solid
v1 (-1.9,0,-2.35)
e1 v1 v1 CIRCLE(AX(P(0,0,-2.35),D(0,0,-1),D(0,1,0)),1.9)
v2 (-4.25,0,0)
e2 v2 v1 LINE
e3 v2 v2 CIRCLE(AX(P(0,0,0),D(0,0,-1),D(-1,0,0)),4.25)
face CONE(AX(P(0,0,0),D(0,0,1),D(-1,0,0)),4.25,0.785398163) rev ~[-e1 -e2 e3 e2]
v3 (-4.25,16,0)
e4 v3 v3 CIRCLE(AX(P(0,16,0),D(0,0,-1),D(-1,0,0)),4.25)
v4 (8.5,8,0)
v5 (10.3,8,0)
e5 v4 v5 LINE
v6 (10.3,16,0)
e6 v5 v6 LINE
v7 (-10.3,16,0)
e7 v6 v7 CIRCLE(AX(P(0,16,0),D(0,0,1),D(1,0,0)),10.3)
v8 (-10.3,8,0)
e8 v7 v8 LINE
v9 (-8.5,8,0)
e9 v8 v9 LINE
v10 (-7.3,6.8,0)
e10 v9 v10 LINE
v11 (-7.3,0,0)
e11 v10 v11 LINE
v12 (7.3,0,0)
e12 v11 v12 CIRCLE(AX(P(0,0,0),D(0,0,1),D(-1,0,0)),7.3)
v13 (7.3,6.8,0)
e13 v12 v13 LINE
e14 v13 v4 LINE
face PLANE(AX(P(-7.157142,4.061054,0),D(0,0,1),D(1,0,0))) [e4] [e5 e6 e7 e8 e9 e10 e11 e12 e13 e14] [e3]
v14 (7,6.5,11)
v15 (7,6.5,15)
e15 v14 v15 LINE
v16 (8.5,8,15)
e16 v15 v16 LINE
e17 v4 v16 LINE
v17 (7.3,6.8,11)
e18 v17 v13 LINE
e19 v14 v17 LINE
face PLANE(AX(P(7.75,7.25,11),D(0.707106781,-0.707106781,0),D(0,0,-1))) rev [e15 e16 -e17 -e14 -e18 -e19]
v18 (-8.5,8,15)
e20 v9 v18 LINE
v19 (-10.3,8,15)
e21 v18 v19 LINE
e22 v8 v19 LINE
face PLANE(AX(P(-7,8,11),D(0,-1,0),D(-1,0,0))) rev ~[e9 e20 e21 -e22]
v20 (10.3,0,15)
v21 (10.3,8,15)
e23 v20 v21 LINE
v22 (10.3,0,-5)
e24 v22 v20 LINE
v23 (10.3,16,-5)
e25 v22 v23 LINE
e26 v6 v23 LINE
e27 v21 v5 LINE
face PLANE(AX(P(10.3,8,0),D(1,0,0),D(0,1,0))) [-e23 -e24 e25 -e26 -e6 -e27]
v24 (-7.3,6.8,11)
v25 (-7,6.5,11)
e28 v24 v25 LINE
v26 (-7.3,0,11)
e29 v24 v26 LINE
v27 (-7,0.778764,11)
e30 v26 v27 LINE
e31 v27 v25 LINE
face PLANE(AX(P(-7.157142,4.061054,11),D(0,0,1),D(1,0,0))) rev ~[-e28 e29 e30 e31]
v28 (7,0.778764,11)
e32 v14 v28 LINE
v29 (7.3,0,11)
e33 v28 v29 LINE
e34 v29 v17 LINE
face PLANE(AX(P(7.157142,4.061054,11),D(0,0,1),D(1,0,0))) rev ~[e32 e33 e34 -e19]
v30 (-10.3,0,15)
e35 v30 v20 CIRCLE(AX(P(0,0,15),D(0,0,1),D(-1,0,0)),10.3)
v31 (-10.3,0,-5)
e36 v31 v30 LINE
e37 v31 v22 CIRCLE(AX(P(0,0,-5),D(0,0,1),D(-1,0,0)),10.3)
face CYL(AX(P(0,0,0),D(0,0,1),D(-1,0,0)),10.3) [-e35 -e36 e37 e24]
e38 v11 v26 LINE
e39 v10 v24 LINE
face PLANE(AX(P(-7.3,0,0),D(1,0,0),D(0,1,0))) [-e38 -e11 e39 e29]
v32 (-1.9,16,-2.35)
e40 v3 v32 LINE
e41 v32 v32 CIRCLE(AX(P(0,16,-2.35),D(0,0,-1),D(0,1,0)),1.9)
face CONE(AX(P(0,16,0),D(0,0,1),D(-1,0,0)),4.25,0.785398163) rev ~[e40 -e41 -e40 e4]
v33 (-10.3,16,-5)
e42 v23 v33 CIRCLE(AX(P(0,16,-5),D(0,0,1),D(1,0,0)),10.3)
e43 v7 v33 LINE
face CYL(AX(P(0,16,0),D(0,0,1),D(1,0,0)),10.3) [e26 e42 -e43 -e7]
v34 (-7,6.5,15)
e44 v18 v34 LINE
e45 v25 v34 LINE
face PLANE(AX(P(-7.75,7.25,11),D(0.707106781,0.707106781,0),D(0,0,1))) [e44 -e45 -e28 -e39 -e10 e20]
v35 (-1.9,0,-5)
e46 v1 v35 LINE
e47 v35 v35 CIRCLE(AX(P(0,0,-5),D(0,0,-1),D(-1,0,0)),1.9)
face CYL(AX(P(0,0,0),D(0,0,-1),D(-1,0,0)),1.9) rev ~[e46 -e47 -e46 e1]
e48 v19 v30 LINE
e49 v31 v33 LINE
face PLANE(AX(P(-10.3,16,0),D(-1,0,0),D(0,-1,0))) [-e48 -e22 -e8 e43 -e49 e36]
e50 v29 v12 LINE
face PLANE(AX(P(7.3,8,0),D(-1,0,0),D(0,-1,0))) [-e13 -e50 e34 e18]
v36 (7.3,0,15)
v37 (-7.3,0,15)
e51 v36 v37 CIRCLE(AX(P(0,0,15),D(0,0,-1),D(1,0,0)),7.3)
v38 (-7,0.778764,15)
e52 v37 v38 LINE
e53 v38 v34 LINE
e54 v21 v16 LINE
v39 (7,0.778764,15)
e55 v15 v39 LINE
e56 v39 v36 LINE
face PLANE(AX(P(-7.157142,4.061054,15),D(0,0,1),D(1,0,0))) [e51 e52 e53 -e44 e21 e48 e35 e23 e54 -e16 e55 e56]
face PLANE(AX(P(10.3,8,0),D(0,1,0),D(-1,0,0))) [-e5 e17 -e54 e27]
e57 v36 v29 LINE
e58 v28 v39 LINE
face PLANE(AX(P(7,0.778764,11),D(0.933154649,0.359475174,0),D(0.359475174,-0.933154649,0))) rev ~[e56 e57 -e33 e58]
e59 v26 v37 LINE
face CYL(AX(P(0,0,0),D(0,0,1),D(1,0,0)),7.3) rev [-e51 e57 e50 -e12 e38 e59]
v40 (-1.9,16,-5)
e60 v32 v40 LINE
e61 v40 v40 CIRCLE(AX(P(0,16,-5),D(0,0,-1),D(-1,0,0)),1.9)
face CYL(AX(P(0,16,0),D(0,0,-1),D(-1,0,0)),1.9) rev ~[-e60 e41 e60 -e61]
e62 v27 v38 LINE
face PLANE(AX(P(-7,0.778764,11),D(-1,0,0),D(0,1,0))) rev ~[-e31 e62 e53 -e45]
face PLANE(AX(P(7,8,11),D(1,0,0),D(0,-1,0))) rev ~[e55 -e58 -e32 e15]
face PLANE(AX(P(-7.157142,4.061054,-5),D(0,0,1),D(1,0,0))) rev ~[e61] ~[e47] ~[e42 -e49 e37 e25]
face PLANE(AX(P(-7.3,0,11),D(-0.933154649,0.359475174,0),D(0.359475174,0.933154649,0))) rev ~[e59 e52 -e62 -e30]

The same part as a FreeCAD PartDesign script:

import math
import FreeCAD as App
import Part
import Sketcher

V = App.Vector


def edges_at(feature, points):
    """Names of the edges that pass closest to the given points."""
    edges = feature.Shape.Edges
    near = lambda p: min(range(len(edges)), key=lambda i: edges[i].distToShape(Part.Vertex(*p))[0])
    return sorted({f"Edge{near(p) + 1}" for p in points})

doc = App.newDocument("Part")
body = doc.addObject("PartDesign::Body", "Body")

sketch1 = body.newObject("Sketcher::SketchObject", "Sketch")
sketch1.AttachmentSupport = (doc.getObject("XY_Plane"), [""])
sketch1.MapMode = "FlatFace"
sketch1.addGeometry([
    Part.ArcOfCircle(Part.Circle(V(0, 0, 0), V(0, 0, 1), 7.3), math.radians(180), math.radians(360)),
    Part.LineSegment(V(-7.3, 0, 0), V(-7.3, 8, 0)),
    Part.LineSegment(V(-7.3, 8, 0), V(-10.3, 8, 0)),
    Part.LineSegment(V(-10.3, 8, 0), V(-10.3, 0, 0)),
    Part.ArcOfCircle(Part.Circle(V(0, 0, 0), V(0, 0, 1), 10.3), math.radians(180), math.radians(360)),
    Part.LineSegment(V(10.3, 0, 0), V(10.3, 8, 0)),
    Part.LineSegment(V(10.3, 8, 0), V(7.3, 8, 0)),
    Part.LineSegment(V(7.3, 8, 0), V(7.3, 0, 0)),
], False)
sketch1.addConstraint([
    Sketcher.Constraint("Tangent", 0, 1, 1, 1),
    Sketcher.Constraint("Coincident", 1, 2, 2, 1),
    Sketcher.Constraint("Coincident", 2, 2, 3, 1),
    Sketcher.Constraint("Tangent", 3, 2, 4, 1),
    Sketcher.Constraint("Tangent", 4, 2, 5, 1),
    Sketcher.Constraint("Coincident", 5, 2, 6, 1),
    Sketcher.Constraint("Coincident", 6, 2, 7, 1),
    Sketcher.Constraint("Tangent", 7, 2, 0, 2),
    Sketcher.Constraint("Vertical", 1),
    Sketcher.Constraint("Horizontal", 2),
    Sketcher.Constraint("Vertical", 3),
    Sketcher.Constraint("Vertical", 5),
    Sketcher.Constraint("Horizontal", 6),
    Sketcher.Constraint("Vertical", 7),
    Sketcher.Constraint("Coincident", 0, 3, -1, 1),
    Sketcher.Constraint("Coincident", 4, 3, -1, 1),
    Sketcher.Constraint("Horizontal", 2, 2, 5, 2),
    Sketcher.Constraint("Radius", 0, 7.3),
    Sketcher.Constraint("Radius", 4, 10.3),
    Sketcher.Constraint("DistanceY", 1, 1, 1, 2, 8.0),
])
pad1 = body.newObject("PartDesign::Pad", "Pad")
pad1.Profile = sketch1
pad1.Type = "TwoLengths"
pad1.Length = 15
pad1.Length2 = 5

sketch2 = body.newObject("Sketcher::SketchObject", "Sketch001")
sketch2.AttachmentSupport = (doc.getObject("XY_Plane"), [""])
sketch2.MapMode = "FlatFace"
sketch2.AttachmentOffset = App.Placement(V(0, 0, 11), App.Rotation())
sketch2.addGeometry([
    Part.LineSegment(V(-7.3, 8, 0), V(-7.3, 0, 0)),
    Part.LineSegment(V(-7.3, 0, 0), V(-7, 0.78, 0)),
    Part.LineSegment(V(-7, 0.78, 0), V(-7, 8, 0)),
    Part.LineSegment(V(-7, 8, 0), V(-7.3, 8, 0)),
    Part.LineSegment(V(7, 0.78, 0), V(7.3, 0, 0)),
    Part.LineSegment(V(7.3, 0, 0), V(7.3, 8, 0)),
    Part.LineSegment(V(7.3, 8, 0), V(7, 8, 0)),
    Part.LineSegment(V(7, 8, 0), V(7, 0.78, 0)),
], False)
sketch2.addConstraint([
    Sketcher.Constraint("Coincident", 0, 2, 1, 1),
    Sketcher.Constraint("Coincident", 1, 2, 2, 1),
    Sketcher.Constraint("Coincident", 2, 2, 3, 1),
    Sketcher.Constraint("Coincident", 3, 2, 0, 1),
    Sketcher.Constraint("Coincident", 4, 2, 5, 1),
    Sketcher.Constraint("Coincident", 5, 2, 6, 1),
    Sketcher.Constraint("Coincident", 6, 2, 7, 1),
    Sketcher.Constraint("Coincident", 7, 2, 4, 1),
    Sketcher.Constraint("Vertical", 0),
    Sketcher.Constraint("Vertical", 2),
    Sketcher.Constraint("Horizontal", 3),
    Sketcher.Constraint("Vertical", 5),
    Sketcher.Constraint("Horizontal", 6),
    Sketcher.Constraint("Vertical", 7),
    Sketcher.Constraint("Symmetric", 0, 2, 4, 2, -1, 1),
    Sketcher.Constraint("Symmetric", 2, 2, 6, 2, -2),
    Sketcher.Constraint("PointOnObject", 0, 2, -1),
    Sketcher.Constraint("Horizontal", 1, 2, 7, 2),
    Sketcher.Constraint("DistanceY", 0, 2, 0, 1, 8.0),
    Sketcher.Constraint("DistanceX", 3, 2, 3, 1, 0.3),
    Sketcher.Constraint("DistanceX", 1, 2, -1, 1, 7.0),
    Sketcher.Constraint("Distance", 1, 0.83455),
])
pad2 = body.newObject("PartDesign::Pad", "Pad001")
pad2.Profile = sketch2
pad2.Length = 4

sketch3 = body.newObject("Sketcher::SketchObject", "Sketch002")
sketch3.AttachmentSupport = (doc.getObject("XY_Plane"), [""])
sketch3.MapMode = "FlatFace"
sketch3.addGeometry([
    Part.LineSegment(V(-7.3, 8, 0), V(-7.3, 0, 0)),
    Part.ArcOfCircle(Part.Circle(V(0, 0, 0), V(0, 0, 1), 7.3), math.radians(180), math.radians(360)),
    Part.LineSegment(V(7.3, 0, 0), V(7.3, 8, 0)),
    Part.LineSegment(V(7.3, 8, 0), V(10.3, 8, 0)),
    Part.LineSegment(V(10.3, 8, 0), V(10.3, 16, 0)),
    Part.ArcOfCircle(Part.Circle(V(0, 16, 0), V(0, 0, 1), 10.3), math.radians(0), math.radians(180)),
    Part.LineSegment(V(-10.3, 16, 0), V(-10.3, 8, 0)),
    Part.LineSegment(V(-10.3, 8, 0), V(-7.3, 8, 0)),
], False)
sketch3.addConstraint([
    Sketcher.Constraint("Tangent", 0, 2, 1, 1),
    Sketcher.Constraint("Tangent", 1, 2, 2, 1),
    Sketcher.Constraint("Coincident", 2, 2, 3, 1),
    Sketcher.Constraint("Coincident", 3, 2, 4, 1),
    Sketcher.Constraint("Tangent", 4, 2, 5, 1),
    Sketcher.Constraint("Tangent", 5, 2, 6, 1),
    Sketcher.Constraint("Coincident", 6, 2, 7, 1),
    Sketcher.Constraint("Coincident", 7, 2, 0, 1),
    Sketcher.Constraint("Vertical", 0),
    Sketcher.Constraint("Vertical", 2),
    Sketcher.Constraint("Horizontal", 3),
    Sketcher.Constraint("Vertical", 4),
    Sketcher.Constraint("Vertical", 6),
    Sketcher.Constraint("Horizontal", 7),
    Sketcher.Constraint("Coincident", 1, 3, -1, 1),
    Sketcher.Constraint("Symmetric", 3, 2, 6, 2, -2),
    Sketcher.Constraint("Equal", 2, 4),
    Sketcher.Constraint("Radius", 1, 7.3),
    Sketcher.Constraint("Radius", 5, 10.3),
    Sketcher.Constraint("DistanceY", 0, 2, 0, 1, 8.0),
])
pad3 = body.newObject("PartDesign::Pad", "Pad002")
pad3.Profile = sketch3
pad3.Length = 5
pad3.Reversed = True

sketch4 = body.newObject("Sketcher::SketchObject", "Sketch003")
sketch4.AttachmentSupport = (doc.getObject("XY_Plane"), [""])
sketch4.MapMode = "FlatFace"
sketch4.addGeometry([
    Part.Circle(V(0, 16, 0), V(0, 0, 1), 1.9),
    Part.Circle(V(0, 0, 0), V(0, 0, 1), 1.9),
], False)
sketch4.addConstraint([
    Sketcher.Constraint("Coincident", 1, 3, -1, 1),
    Sketcher.Constraint("Equal", 0, 1),
    Sketcher.Constraint("PointOnObject", 0, 3, -2),
    Sketcher.Constraint("Diameter", 0, 3.8),
    Sketcher.Constraint("DistanceY", -1, 1, 0, 3, 16.0),
])
doc.recompute()
hole = body.newObject("PartDesign::Hole", "Hole")
hole.Profile = sketch4
hole.ThreadType = "None"
hole.Diameter = 3.8
hole.DepthType = "ThroughAll"
hole.HoleCutType = "Countersink"
hole.HoleCutDiameter = 8.5
hole.HoleCutCountersinkAngle = 90
doc.recompute()

chamfer = body.newObject("PartDesign::Chamfer", "Chamfer")
chamfer.Base = (hole, edges_at(hole, [(-7, 8, 13), (7, 8, 13)]))
chamfer.Size = 1.5

doc.recompute()
